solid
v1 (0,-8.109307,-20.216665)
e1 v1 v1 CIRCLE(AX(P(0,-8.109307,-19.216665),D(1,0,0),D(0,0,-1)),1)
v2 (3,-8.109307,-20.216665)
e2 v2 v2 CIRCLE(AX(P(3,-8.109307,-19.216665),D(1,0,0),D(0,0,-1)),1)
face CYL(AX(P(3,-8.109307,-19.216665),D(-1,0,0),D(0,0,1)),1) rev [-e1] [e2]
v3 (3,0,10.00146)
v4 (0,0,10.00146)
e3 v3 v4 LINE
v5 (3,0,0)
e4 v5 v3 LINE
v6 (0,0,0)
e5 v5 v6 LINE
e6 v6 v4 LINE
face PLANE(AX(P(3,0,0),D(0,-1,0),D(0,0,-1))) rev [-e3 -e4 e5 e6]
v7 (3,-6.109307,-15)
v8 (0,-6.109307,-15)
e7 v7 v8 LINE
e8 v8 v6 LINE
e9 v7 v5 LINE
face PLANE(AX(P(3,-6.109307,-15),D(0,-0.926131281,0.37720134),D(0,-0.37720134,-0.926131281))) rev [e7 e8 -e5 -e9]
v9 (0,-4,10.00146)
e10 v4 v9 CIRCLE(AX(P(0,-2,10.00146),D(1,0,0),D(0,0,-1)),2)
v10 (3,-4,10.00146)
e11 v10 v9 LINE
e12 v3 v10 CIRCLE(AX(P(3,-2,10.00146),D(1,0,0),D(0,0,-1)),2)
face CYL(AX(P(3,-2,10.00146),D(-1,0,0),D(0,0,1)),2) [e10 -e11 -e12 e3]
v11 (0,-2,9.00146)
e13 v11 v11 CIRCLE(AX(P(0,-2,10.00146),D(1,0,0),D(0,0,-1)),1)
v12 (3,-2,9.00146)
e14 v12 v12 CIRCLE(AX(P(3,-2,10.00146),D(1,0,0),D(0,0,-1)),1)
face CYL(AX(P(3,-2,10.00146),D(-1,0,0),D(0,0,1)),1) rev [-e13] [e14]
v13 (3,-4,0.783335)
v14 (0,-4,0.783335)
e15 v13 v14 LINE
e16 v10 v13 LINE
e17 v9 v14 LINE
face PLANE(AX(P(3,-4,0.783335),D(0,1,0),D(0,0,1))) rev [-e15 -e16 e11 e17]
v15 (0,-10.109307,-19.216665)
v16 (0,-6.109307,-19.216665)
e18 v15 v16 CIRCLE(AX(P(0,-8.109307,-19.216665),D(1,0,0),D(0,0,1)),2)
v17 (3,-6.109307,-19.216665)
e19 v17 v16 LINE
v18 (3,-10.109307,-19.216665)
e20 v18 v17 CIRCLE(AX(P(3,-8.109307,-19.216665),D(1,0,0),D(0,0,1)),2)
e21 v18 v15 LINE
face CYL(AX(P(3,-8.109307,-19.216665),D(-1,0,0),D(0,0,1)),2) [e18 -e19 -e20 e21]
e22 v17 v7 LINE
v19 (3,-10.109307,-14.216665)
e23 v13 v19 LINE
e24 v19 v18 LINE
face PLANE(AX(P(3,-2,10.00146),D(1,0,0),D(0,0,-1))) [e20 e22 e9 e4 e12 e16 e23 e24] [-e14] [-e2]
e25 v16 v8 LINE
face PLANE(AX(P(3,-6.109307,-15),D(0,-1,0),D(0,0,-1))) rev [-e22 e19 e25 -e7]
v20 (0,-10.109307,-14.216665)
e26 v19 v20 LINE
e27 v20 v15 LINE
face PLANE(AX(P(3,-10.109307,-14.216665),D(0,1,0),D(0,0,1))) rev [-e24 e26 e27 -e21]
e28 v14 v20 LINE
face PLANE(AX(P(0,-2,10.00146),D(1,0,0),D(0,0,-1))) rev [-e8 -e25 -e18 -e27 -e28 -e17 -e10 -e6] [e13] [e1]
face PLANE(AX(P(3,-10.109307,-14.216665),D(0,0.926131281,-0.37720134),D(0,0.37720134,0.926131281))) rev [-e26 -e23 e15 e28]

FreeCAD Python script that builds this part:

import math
import FreeCAD as App
import Part
import Sketcher
from FreeCAD import Vector

doc = App.newDocument("Part")
body = doc.addObject("PartDesign::Body", "Body")

# Sketch on YZ plane
sketch1 = doc.addObject("Sketcher::SketchObject", "Sketch")
body.addObject(sketch1)
sketch1.AttachmentSupport = (doc.YZ_Plane, [""])
sketch1.MapMode = "FlatFace"
sketch1.addGeometry([
    Part.LineSegment(Vector(-6.109307, -19.216665, 0), Vector(-6.109307, -15, 0)),  # 0
    Part.LineSegment(Vector(-6.109307, -15, 0), Vector(0, 0, 0)),  # 1
    Part.LineSegment(Vector(0, 0, 0), Vector(0, 10.00146, 0)),  # 2
    Part.ArcOfCircle(Part.Circle(Vector(-2, 10.00146, 0), Vector(0, 0, 1), 2), math.radians(0), math.radians(180)),  # 3
    Part.LineSegment(Vector(-4, 10.00146, 0), Vector(-4, 0.783335, 0)),  # 4
    Part.LineSegment(Vector(-4, 0.783335, 0), Vector(-10.109307, -14.216665, 0)),  # 5
    Part.LineSegment(Vector(-10.109307, -14.216665, 0), Vector(-10.109307, -19.216665, 0)),  # 6
    Part.ArcOfCircle(Part.Circle(Vector(-8.109307, -19.216665, 0), Vector(0, 0, 1), 2), math.radians(180), math.radians(360)),  # 7
    Part.Circle(Vector(-8.109307, -19.216665, 0), Vector(0, 0, 1), 1),  # 8
    Part.Circle(Vector(-2, 10.00146, 0), Vector(0, 0, 1), 1),  # 9
], False)
sketch1.addConstraint([
    Sketcher.Constraint("Coincident", 0, 2, 1, 1),
    Sketcher.Constraint("Coincident", 1, 2, 2, 1),
    Sketcher.Constraint("Tangent", 2, 2, 3, 1),
    Sketcher.Constraint("Tangent", 3, 2, 4, 1),
    Sketcher.Constraint("Coincident", 4, 2, 5, 1),
    Sketcher.Constraint("Coincident", 5, 2, 6, 1),
    Sketcher.Constraint("Tangent", 6, 2, 7, 1),
    Sketcher.Constraint("Tangent", 7, 2, 0, 1),
    Sketcher.Constraint("Vertical", 0),
    Sketcher.Constraint("Vertical", 2),
    Sketcher.Constraint("Vertical", 4),
    Sketcher.Constraint("Vertical", 6),
    Sketcher.Constraint("Coincident", 1, 2, -1, 1),
    Sketcher.Constraint("Coincident", 8, 3, 7, 3),
    Sketcher.Constraint("Coincident", 9, 3, 3, 3),
    Sketcher.Constraint("Equal", 3, 7),
    Sketcher.Constraint("Equal", 8, 9),
    Sketcher.Constraint("Parallel", 1, 5),
    Sketcher.Constraint("Diameter", 8, 2.0),
    Sketcher.Constraint("Radius", 3, 2.0),
    Sketcher.Constraint("DistanceY", 6, 2, 6, 1, 5.0),
    Sketcher.Constraint("DistanceY", 0, 2, -1, 1, 15.0),
    Sketcher.Constraint("DistanceY", 2, 1, 2, 2, 10.00146),
    Sketcher.Constraint("DistanceY", 0, 1, 0, 2, 4.216665),
    Sketcher.Constraint("Distance", 1, 16.196408),
])
pad1 = doc.addObject("PartDesign::Pad", "Pad")
body.addObject(pad1)
pad1.Profile = sketch1
pad1.Length = 3

doc.recompute()
